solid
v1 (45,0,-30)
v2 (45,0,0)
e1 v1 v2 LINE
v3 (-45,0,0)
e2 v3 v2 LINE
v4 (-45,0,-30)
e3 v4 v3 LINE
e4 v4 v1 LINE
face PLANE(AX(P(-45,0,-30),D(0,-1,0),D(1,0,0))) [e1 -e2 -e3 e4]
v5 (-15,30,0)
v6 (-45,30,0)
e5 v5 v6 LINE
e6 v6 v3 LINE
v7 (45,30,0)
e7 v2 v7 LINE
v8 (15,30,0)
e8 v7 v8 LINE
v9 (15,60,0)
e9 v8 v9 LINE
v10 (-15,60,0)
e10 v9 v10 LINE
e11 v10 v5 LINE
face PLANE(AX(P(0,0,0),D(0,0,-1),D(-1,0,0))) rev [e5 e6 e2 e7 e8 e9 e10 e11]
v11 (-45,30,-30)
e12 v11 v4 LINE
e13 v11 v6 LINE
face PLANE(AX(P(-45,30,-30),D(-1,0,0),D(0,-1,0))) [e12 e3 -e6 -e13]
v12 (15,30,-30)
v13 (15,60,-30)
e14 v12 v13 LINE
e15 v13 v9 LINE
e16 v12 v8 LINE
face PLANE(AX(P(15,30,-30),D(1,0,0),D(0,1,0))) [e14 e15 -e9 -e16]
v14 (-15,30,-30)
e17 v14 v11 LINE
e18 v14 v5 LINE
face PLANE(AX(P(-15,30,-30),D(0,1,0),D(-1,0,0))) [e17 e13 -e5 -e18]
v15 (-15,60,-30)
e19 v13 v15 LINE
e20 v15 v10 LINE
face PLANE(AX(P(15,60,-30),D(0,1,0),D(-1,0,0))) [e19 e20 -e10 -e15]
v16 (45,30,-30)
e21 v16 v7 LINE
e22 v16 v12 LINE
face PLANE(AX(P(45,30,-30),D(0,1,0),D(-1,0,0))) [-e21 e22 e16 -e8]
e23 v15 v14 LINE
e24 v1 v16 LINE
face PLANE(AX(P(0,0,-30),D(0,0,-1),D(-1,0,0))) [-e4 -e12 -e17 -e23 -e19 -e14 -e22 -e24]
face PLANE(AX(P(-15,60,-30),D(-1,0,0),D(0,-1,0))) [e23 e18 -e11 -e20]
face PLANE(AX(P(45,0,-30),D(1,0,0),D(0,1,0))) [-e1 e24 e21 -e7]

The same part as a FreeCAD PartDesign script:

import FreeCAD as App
import Part
import Sketcher
Q = App.Units.Quantity

doc = App.newDocument("Part")
body = doc.addObject("PartDesign::Body", "Body")

sketch1 = body.newObject("Sketcher::SketchObject", "Sketch")
sketch1.AttachmentSupport = (doc.getObject("XY_Plane"), [""])
sketch1.MapMode = "FlatFace"
sketch1.addGeometry([
    Part.LineSegment(App.Vector(-45, 0, 0), App.Vector(45, 0, 0)),
    Part.LineSegment(App.Vector(45, 0, 0), App.Vector(45, 30, 0)),
    Part.LineSegment(App.Vector(45, 30, 0), App.Vector(15, 30, 0)),
    Part.LineSegment(App.Vector(15, 30, 0), App.Vector(15, 60, 0)),
    Part.LineSegment(App.Vector(15, 60, 0), App.Vector(-15, 60, 0)),
    Part.LineSegment(App.Vector(-15, 60, 0), App.Vector(-15, 30, 0)),
    Part.LineSegment(App.Vector(-15, 30, 0), App.Vector(-45, 30, 0)),
    Part.LineSegment(App.Vector(-45, 30, 0), App.Vector(-45, 0, 0)),
], False)
sketch1.addConstraint([
    Sketcher.Constraint("Coincident", 0, 2, 1, 1),
    Sketcher.Constraint("Coincident", 1, 2, 2, 1),
    Sketcher.Constraint("Coincident", 2, 2, 3, 1),
    Sketcher.Constraint("Coincident", 3, 2, 4, 1),
    Sketcher.Constraint("Coincident", 4, 2, 5, 1),
    Sketcher.Constraint("Coincident", 5, 2, 6, 1),
    Sketcher.Constraint("Coincident", 6, 2, 7, 1),
    Sketcher.Constraint("Coincident", 7, 2, 0, 1),
    Sketcher.Constraint("Horizontal", 0),
    Sketcher.Constraint("Vertical", 1),
    Sketcher.Constraint("Horizontal", 2),
    Sketcher.Constraint("Vertical", 3),
    Sketcher.Constraint("Horizontal", 4),
    Sketcher.Constraint("Vertical", 5),
    Sketcher.Constraint("Horizontal", 6),
    Sketcher.Constraint("Vertical", 7),
    Sketcher.Constraint("Symmetric", 0, 2, 7, 2, -1, 1),
    Sketcher.Constraint("Symmetric", 2, 2, 5, 2, -2),
    Sketcher.Constraint("Equal", 2, 4),
    Sketcher.Constraint("Equal", 6, 1),
    Sketcher.Constraint("Equal", 1, 3),
    Sketcher.Constraint("DistanceX", 0, 1, 0, 2, Q("90 mm")),
])
pad1 = body.newObject("PartDesign::Pad", "Pad")
pad1.Profile = sketch1
pad1.Length = 30
pad1.Reversed = True

doc.recompute()
